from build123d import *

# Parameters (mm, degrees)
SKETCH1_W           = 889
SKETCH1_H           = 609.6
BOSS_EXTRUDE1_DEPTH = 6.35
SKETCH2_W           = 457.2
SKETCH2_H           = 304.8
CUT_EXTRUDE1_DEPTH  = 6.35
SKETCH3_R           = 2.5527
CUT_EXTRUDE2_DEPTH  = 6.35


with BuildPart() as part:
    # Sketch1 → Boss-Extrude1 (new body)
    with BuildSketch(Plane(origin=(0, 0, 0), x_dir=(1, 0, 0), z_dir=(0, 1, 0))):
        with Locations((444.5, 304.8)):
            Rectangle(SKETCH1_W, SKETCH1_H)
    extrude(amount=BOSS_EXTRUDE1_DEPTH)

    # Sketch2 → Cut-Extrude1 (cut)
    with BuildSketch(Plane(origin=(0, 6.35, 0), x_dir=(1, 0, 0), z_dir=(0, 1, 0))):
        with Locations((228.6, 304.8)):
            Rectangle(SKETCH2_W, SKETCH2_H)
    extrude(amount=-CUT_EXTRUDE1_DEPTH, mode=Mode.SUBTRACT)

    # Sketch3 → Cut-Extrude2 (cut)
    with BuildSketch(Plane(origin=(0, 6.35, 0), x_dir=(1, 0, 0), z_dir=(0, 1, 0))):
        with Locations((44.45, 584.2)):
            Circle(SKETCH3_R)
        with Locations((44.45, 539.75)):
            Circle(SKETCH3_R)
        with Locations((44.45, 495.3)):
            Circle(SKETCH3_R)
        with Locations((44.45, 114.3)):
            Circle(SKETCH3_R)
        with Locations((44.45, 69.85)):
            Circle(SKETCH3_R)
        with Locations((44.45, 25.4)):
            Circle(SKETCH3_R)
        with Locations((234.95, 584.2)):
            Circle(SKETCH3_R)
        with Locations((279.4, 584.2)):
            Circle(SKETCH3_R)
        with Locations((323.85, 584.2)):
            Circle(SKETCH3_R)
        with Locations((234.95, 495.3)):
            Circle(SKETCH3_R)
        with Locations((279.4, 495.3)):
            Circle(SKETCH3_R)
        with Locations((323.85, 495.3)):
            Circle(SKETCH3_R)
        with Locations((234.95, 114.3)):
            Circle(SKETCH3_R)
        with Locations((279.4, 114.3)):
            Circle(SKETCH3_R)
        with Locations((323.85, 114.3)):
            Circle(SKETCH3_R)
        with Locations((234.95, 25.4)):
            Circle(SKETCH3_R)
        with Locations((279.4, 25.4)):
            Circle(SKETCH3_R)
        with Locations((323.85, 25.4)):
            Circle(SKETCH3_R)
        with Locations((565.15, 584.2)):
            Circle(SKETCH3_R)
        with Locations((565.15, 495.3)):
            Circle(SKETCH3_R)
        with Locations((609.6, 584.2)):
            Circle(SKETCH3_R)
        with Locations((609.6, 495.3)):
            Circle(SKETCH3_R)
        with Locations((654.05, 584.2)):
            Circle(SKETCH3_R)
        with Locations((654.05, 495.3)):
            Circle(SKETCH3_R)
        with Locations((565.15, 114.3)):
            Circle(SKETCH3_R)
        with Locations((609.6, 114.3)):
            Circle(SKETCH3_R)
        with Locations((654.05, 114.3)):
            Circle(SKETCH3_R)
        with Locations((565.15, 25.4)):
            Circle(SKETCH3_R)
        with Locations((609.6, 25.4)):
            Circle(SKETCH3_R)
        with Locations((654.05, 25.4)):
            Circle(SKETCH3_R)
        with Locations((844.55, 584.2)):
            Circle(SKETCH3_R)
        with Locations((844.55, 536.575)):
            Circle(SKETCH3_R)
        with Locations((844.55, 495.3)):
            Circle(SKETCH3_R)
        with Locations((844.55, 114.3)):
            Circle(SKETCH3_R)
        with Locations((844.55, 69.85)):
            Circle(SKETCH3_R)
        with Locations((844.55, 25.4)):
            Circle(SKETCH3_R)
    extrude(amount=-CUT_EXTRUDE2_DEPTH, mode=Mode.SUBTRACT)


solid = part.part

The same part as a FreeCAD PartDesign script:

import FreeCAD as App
import Part
import Sketcher
from FreeCAD import Vector
Q = App.Units.Quantity

doc = App.newDocument("Part")
body = doc.addObject("PartDesign::Body", "Body")

# Sketch on XZ plane
sketch1 = body.newObject("Sketcher::SketchObject", "Sketch")
sketch1.AttachmentSupport = (doc.getObject("XZ_Plane"), [""])
sketch1.MapMode = "FlatFace"
sketch1.addGeometry(Part.LineSegment(Vector(0, -609.6, 0), Vector(0, 0, 0)), False)
sketch1.addGeometry(Part.LineSegment(Vector(0, 0, 0), Vector(889, 0, 0)), False)
sketch1.addGeometry(Part.LineSegment(Vector(889, 0, 0), Vector(889, -609.6, 0)), False)
sketch1.addGeometry(Part.LineSegment(Vector(889, -609.6, 0), Vector(0, -609.6, 0)), False)
sketch1.addConstraint(Sketcher.Constraint("Coincident", 0, 2, 1, 1))
sketch1.addConstraint(Sketcher.Constraint("Coincident", 1, 2, 2, 1))
sketch1.addConstraint(Sketcher.Constraint("Coincident", 2, 2, 3, 1))
sketch1.addConstraint(Sketcher.Constraint("Coincident", 3, 2, 0, 1))
sketch1.addConstraint(Sketcher.Constraint("Vertical", 0))
sketch1.addConstraint(Sketcher.Constraint("Horizontal", 1))
sketch1.addConstraint(Sketcher.Constraint("Vertical", 2))
sketch1.addConstraint(Sketcher.Constraint("Horizontal", 3))
sketch1.addConstraint(Sketcher.Constraint("Coincident", 0, 2, -1, 1))
sketch1.addConstraint(Sketcher.Constraint("DistanceX", 1, 1, 1, 2, Q("35 in")))
sketch1.addConstraint(Sketcher.Constraint("DistanceY", 0, 1, 0, 2, Q("24 in")))
pad1 = body.newObject("PartDesign::Pad", "Pad")
pad1.Profile = sketch1
pad1.Length = Q("0.25 in")
pad1.Reversed = True

# Sketch on XZ plane
sketch2 = body.newObject("Sketcher::SketchObject", "Sketch001")
sketch2.AttachmentSupport = (doc.getObject("XZ_Plane"), [""])
sketch2.MapMode = "FlatFace"
sketch2.AttachmentOffset = App.Placement(Vector(0, 0, -0.25 * 25.4), App.Rotation())
sketch2.addGeometry(Part.LineSegment(Vector(0, -457.2, 0), Vector(0, -152.4, 0)), False)
sketch2.addGeometry(Part.LineSegment(Vector(0, -152.4, 0), Vector(457.2, -152.4, 0)), False)
sketch2.addGeometry(Part.LineSegment(Vector(457.2, -152.4, 0), Vector(457.2, -457.2, 0)), False)
sketch2.addGeometry(Part.LineSegment(Vector(457.2, -457.2, 0), Vector(0, -457.2, 0)), False)
sketch2.addConstraint(Sketcher.Constraint("Coincident", 0, 2, 1, 1))
sketch2.addConstraint(Sketcher.Constraint("Coincident", 1, 2, 2, 1))
sketch2.addConstraint(Sketcher.Constraint("Coincident", 2, 2, 3, 1))
sketch2.addConstraint(Sketcher.Constraint("Coincident", 3, 2, 0, 1))
sketch2.addConstraint(Sketcher.Constraint("Vertical", 0))
sketch2.addConstraint(Sketcher.Constraint("Horizontal", 1))
sketch2.addConstraint(Sketcher.Constraint("Vertical", 2))
sketch2.addConstraint(Sketcher.Constraint("Horizontal", 3))
sketch2.addConstraint(Sketcher.Constraint("PointOnObject", 0, 2, -2))
sketch2.addConstraint(Sketcher.Constraint("DistanceX", 1, 1, 1, 2, Q("18 in")))
sketch2.addConstraint(Sketcher.Constraint("DistanceY", 0, 1, 0, 2, Q("12 in")))
sketch2.addConstraint(Sketcher.Constraint("DistanceY", 0, 2, -1, 1, Q("6 in")))
pocket1 = body.newObject("PartDesign::Pocket", "Pocket")
pocket1.Profile = sketch2
pocket1.Length = Q("0.25 in")
pocket1.Reversed = True

# Sketch on XZ plane
sketch3 = body.newObject("Sketcher::SketchObject", "Sketch002")
sketch3.AttachmentSupport = (doc.getObject("XZ_Plane"), [""])
sketch3.MapMode = "FlatFace"
sketch3.AttachmentOffset = App.Placement(Vector(0, 0, -0.25 * 25.4), App.Rotation())
sketch3.addGeometry(Part.Circle(Vector(44.45, -584.2, 0), Vector(0, 0, 1), 2.5527), False)
sketch3.addGeometry(Part.Circle(Vector(44.45, -539.75, 0), Vector(0, 0, 1), 2.5527), False)
sketch3.addGeometry(Part.Circle(Vector(44.45, -495.3, 0), Vector(0, 0, 1), 2.5527), False)
sketch3.addGeometry(Part.Circle(Vector(44.45, -114.3, 0), Vector(0, 0, 1), 2.5527), False)
sketch3.addGeometry(Part.Circle(Vector(44.45, -69.85, 0), Vector(0, 0, 1), 2.5527), False)
sketch3.addGeometry(Part.Circle(Vector(44.45, -25.4, 0), Vector(0, 0, 1), 2.5527), False)
sketch3.addGeometry(Part.Circle(Vector(234.95, -584.2, 0), Vector(0, 0, 1), 2.5527), False)
sketch3.addGeometry(Part.Circle(Vector(279.4, -584.2, 0), Vector(0, 0, 1), 2.5527), False)
sketch3.addGeometry(Part.Circle(Vector(323.85, -584.2, 0), Vector(0, 0, 1), 2.5527), False)
sketch3.addGeometry(Part.Circle(Vector(234.95, -495.3, 0), Vector(0, 0, 1), 2.5527), False)
sketch3.addGeometry(Part.Circle(Vector(279.4, -495.3, 0), Vector(0, 0, 1), 2.5527), False)
sketch3.addGeometry(Part.Circle(Vector(323.85, -495.3, 0), Vector(0, 0, 1), 2.5527), False)
sketch3.addGeometry(Part.Circle(Vector(234.95, -114.3, 0), Vector(0, 0, 1), 2.5527), False)
sketch3.addGeometry(Part.Circle(Vector(279.4, -114.3, 0), Vector(0, 0, 1), 2.5527), False)
sketch3.addGeometry(Part.Circle(Vector(323.85, -114.3, 0), Vector(0, 0, 1), 2.5527), False)
sketch3.addGeometry(Part.Circle(Vector(234.95, -25.4, 0), Vector(0, 0, 1), 2.5527), False)
sketch3.addGeometry(Part.Circle(Vector(279.4, -25.4, 0), Vector(0, 0, 1), 2.5527), False)
sketch3.addGeometry(Part.Circle(Vector(323.85, -25.4, 0), Vector(0, 0, 1), 2.5527), False)
sketch3.addGeometry(Part.Circle(Vector(565.15, -584.2, 0), Vector(0, 0, 1), 2.5527), False)
sketch3.addGeometry(Part.Circle(Vector(565.15, -495.3, 0), Vector(0, 0, 1), 2.5527), False)
sketch3.addGeometry(Part.Circle(Vector(609.6, -584.2, 0), Vector(0, 0, 1), 2.5527), False)
sketch3.addGeometry(Part.Circle(Vector(609.6, -495.3, 0), Vector(0, 0, 1), 2.5527), False)
sketch3.addGeometry(Part.Circle(Vector(654.05, -584.2, 0), Vector(0, 0, 1), 2.5527), False)
sketch3.addGeometry(Part.Circle(Vector(654.05, -495.3, 0), Vector(0, 0, 1), 2.5527), False)
sketch3.addGeometry(Part.Circle(Vector(565.15, -114.3, 0), Vector(0, 0, 1), 2.5527), False)
sketch3.addGeometry(Part.Circle(Vector(609.6, -114.3, 0), Vector(0, 0, 1), 2.5527), False)
sketch3.addGeometry(Part.Circle(Vector(654.05, -114.3, 0), Vector(0, 0, 1), 2.5527), False)
sketch3.addGeometry(Part.Circle(Vector(565.15, -25.4, 0), Vector(0, 0, 1), 2.5527), False)
sketch3.addGeometry(Part.Circle(Vector(609.6, -25.4, 0), Vector(0, 0, 1), 2.5527), False)
sketch3.addGeometry(Part.Circle(Vector(654.05, -25.4, 0), Vector(0, 0, 1), 2.5527), False)
sketch3.addGeometry(Part.Circle(Vector(844.55, -584.2, 0), Vector(0, 0, 1), 2.5527), False)
sketch3.addGeometry(Part.Circle(Vector(844.55, -536.575, 0), Vector(0, 0, 1), 2.5527), False)
sketch3.addGeometry(Part.Circle(Vector(844.55, -495.3, 0), Vector(0, 0, 1), 2.5527), False)
sketch3.addGeometry(Part.Circle(Vector(844.55, -114.3, 0), Vector(0, 0, 1), 2.5527), False)
sketch3.addGeometry(Part.Circle(Vector(844.55, -69.85, 0), Vector(0, 0, 1), 2.5527), False)
sketch3.addGeometry(Part.Circle(Vector(844.55, -25.4, 0), Vector(0, 0, 1), 2.5527), False)
sketch3.addConstraint(Sketcher.Constraint("Equal", 0, 1))
sketch3.addConstraint(Sketcher.Constraint("Equal", 1, 2))
sketch3.addConstraint(Sketcher.Constraint("Equal", 2, 3))
sketch3.addConstraint(Sketcher.Constraint("Equal", 3, 4))
sketch3.addConstraint(Sketcher.Constraint("Equal", 4, 5))
sketch3.addConstraint(Sketcher.Constraint("Equal", 5, 6))
sketch3.addConstraint(Sketcher.Constraint("Equal", 6, 7))
sketch3.addConstraint(Sketcher.Constraint("Equal", 7, 8))
sketch3.addConstraint(Sketcher.Constraint("Equal", 8, 9))
sketch3.addConstraint(Sketcher.Constraint("Equal", 9, 10))
sketch3.addConstraint(Sketcher.Constraint("Equal", 10, 11))
sketch3.addConstraint(Sketcher.Constraint("Equal", 11, 12))
sketch3.addConstraint(Sketcher.Constraint("Equal", 12, 13))
sketch3.addConstraint(Sketcher.Constraint("Equal", 13, 14))
sketch3.addConstraint(Sketcher.Constraint("Equal", 14, 15))
sketch3.addConstraint(Sketcher.Constraint("Equal", 15, 16))
sketch3.addConstraint(Sketcher.Constraint("Equal", 16, 17))
sketch3.addConstraint(Sketcher.Constraint("Equal", 17, 18))
sketch3.addConstraint(Sketcher.Constraint("Equal", 18, 19))
sketch3.addConstraint(Sketcher.Constraint("Equal", 19, 20))
sketch3.addConstraint(Sketcher.Constraint("Equal", 20, 21))
sketch3.addConstraint(Sketcher.Constraint("Equal", 21, 22))
sketch3.addConstraint(Sketcher.Constraint("Equal", 22, 23))
sketch3.addConstraint(Sketcher.Constraint("Equal", 23, 24))
sketch3.addConstraint(Sketcher.Constraint("Equal", 24, 25))
sketch3.addConstraint(Sketcher.Constraint("Equal", 25, 26))
sketch3.addConstraint(Sketcher.Constraint("Equal", 26, 27))
sketch3.addConstraint(Sketcher.Constraint("Equal", 27, 28))
sketch3.addConstraint(Sketcher.Constraint("Equal", 28, 29))
sketch3.addConstraint(Sketcher.Constraint("Equal", 29, 30))
sketch3.addConstraint(Sketcher.Constraint("Equal", 30, 31))
sketch3.addConstraint(Sketcher.Constraint("Equal", 31, 32))
sketch3.addConstraint(Sketcher.Constraint("Equal", 32, 33))
sketch3.addConstraint(Sketcher.Constraint("Equal", 33, 34))
sketch3.addConstraint(Sketcher.Constraint("Equal", 34, 35))
sketch3.addConstraint(Sketcher.Constraint("Horizontal", 0, 3, 6, 3))
sketch3.addConstraint(Sketcher.Constraint("Horizontal", 6, 3, 7, 3))
sketch3.addConstraint(Sketcher.Constraint("Horizontal", 7, 3, 8, 3))
sketch3.addConstraint(Sketcher.Constraint("Horizontal", 2, 3, 9, 3))
sketch3.addConstraint(Sketcher.Constraint("Horizontal", 9, 3, 10, 3))
sketch3.addConstraint(Sketcher.Constraint("Horizontal", 10, 3, 11, 3))
sketch3.addConstraint(Sketcher.Constraint("Horizontal", 3, 3, 12, 3))
sketch3.addConstraint(Sketcher.Constraint("Horizontal", 12, 3, 13, 3))
sketch3.addConstraint(Sketcher.Constraint("Horizontal", 13, 3, 14, 3))
sketch3.addConstraint(Sketcher.Constraint("Horizontal", 5, 3, 15, 3))
sketch3.addConstraint(Sketcher.Constraint("Horizontal", 15, 3, 16, 3))
sketch3.addConstraint(Sketcher.Constraint("Horizontal", 16, 3, 17, 3))
sketch3.addConstraint(Sketcher.Constraint("Horizontal", 8, 3, 18, 3))
sketch3.addConstraint(Sketcher.Constraint("Horizontal", 11, 3, 19, 3))
sketch3.addConstraint(Sketcher.Constraint("Horizontal", 18, 3, 20, 3))
sketch3.addConstraint(Sketcher.Constraint("Horizontal", 19, 3, 21, 3))
sketch3.addConstraint(Sketcher.Constraint("Horizontal", 20, 3, 22, 3))
sketch3.addConstraint(Sketcher.Constraint("Horizontal", 21, 3, 23, 3))
sketch3.addConstraint(Sketcher.Constraint("Horizontal", 14, 3, 24, 3))
sketch3.addConstraint(Sketcher.Constraint("Horizontal", 24, 3, 25, 3))
sketch3.addConstraint(Sketcher.Constraint("Horizontal", 25, 3, 26, 3))
sketch3.addConstraint(Sketcher.Constraint("Horizontal", 17, 3, 27, 3))
sketch3.addConstraint(Sketcher.Constraint("Horizontal", 27, 3, 28, 3))
sketch3.addConstraint(Sketcher.Constraint("Horizontal", 28, 3, 29, 3))
sketch3.addConstraint(Sketcher.Constraint("Horizontal", 22, 3, 30, 3))
sketch3.addConstraint(Sketcher.Constraint("Horizontal", 23, 3, 32, 3))
sketch3.addConstraint(Sketcher.Constraint("Horizontal", 26, 3, 33, 3))
sketch3.addConstraint(Sketcher.Constraint("Horizontal", 4, 3, 34, 3))
sketch3.addConstraint(Sketcher.Constraint("Horizontal", 29, 3, 35, 3))
sketch3.addConstraint(Sketcher.Constraint("Vertical", 0, 3, 1, 3))
sketch3.addConstraint(Sketcher.Constraint("Vertical", 1, 3, 2, 3))
sketch3.addConstraint(Sketcher.Constraint("Vertical", 2, 3, 3, 3))
sketch3.addConstraint(Sketcher.Constraint("Vertical", 3, 3, 4, 3))
sketch3.addConstraint(Sketcher.Constraint("Vertical", 4, 3, 5, 3))
sketch3.addConstraint(Sketcher.Constraint("Vertical", 6, 3, 9, 3))
sketch3.addConstraint(Sketcher.Constraint("Vertical", 7, 3, 10, 3))
sketch3.addConstraint(Sketcher.Constraint("Vertical", 8, 3, 11, 3))
sketch3.addConstraint(Sketcher.Constraint("Vertical", 9, 3, 12, 3))
sketch3.addConstraint(Sketcher.Constraint("Vertical", 10, 3, 13, 3))
sketch3.addConstraint(Sketcher.Constraint("Vertical", 11, 3, 14, 3))
sketch3.addConstraint(Sketcher.Constraint("Vertical", 12, 3, 15, 3))
sketch3.addConstraint(Sketcher.Constraint("Vertical", 13, 3, 16, 3))
sketch3.addConstraint(Sketcher.Constraint("Vertical", 14, 3, 17, 3))
sketch3.addConstraint(Sketcher.Constraint("Vertical", 18, 3, 19, 3))
sketch3.addConstraint(Sketcher.Constraint("Vertical", 20, 3, 21, 3))
sketch3.addConstraint(Sketcher.Constraint("Vertical", 22, 3, 23, 3))
sketch3.addConstraint(Sketcher.Constraint("Vertical", 19, 3, 24, 3))
sketch3.addConstraint(Sketcher.Constraint("Vertical", 21, 3, 25, 3))
sketch3.addConstraint(Sketcher.Constraint("Vertical", 23, 3, 26, 3))
sketch3.addConstraint(Sketcher.Constraint("Vertical", 24, 3, 27, 3))
sketch3.addConstraint(Sketcher.Constraint("Vertical", 25, 3, 28, 3))
sketch3.addConstraint(Sketcher.Constraint("Vertical", 26, 3, 29, 3))
sketch3.addConstraint(Sketcher.Constraint("Vertical", 30, 3, 31, 3))
sketch3.addConstraint(Sketcher.Constraint("Vertical", 31, 3, 32, 3))
sketch3.addConstraint(Sketcher.Constraint("Vertical", 32, 3, 33, 3))
sketch3.addConstraint(Sketcher.Constraint("Vertical", 33, 3, 34, 3))
sketch3.addConstraint(Sketcher.Constraint("Vertical", 34, 3, 35, 3))
sketch3.addConstraint(Sketcher.Constraint("Diameter", 0, Q("0.201 in")))
sketch3.addConstraint(Sketcher.Constraint("DistanceY", 0, 3, -1, 1, Q("23 in")))
sketch3.addConstraint(Sketcher.Constraint("DistanceY", 5, 3, -1, 1, Q("1 in")))
sketch3.addConstraint(Sketcher.Constraint("DistanceX", -1, 1, 7, 3, Q("11 in")))
sketch3.addConstraint(Sketcher.Constraint("DistanceX", -1, 1, 20, 3, Q("24 in")))
sketch3.addConstraint(Sketcher.Constraint("DistanceY", 2, 3, 3, 3, Q("15 in")))
sketch3.addConstraint(Sketcher.Constraint("DistanceX", 0, 3, 8, 3, Q("11 in")))
sketch3.addConstraint(Sketcher.Constraint("DistanceX", 6, 3, 18, 3, Q("13 in")))
sketch3.addConstraint(Sketcher.Constraint("DistanceX", 8, 3, 22, 3, Q("13 in")))
sketch3.addConstraint(Sketcher.Constraint("DistanceX", 18, 3, 30, 3, Q("11 in")))
sketch3.addConstraint(Sketcher.Constraint("DistanceY", 2, 3, -1, 1, Q("19.5 in")))
sketch3.addConstraint(Sketcher.Constraint("DistanceY", 1, 3, 4, 3, Q("18.5 in")))
sketch3.addConstraint(Sketcher.Constraint("DistanceX", 0, 3, 6, 3, Q("7.5 in")))
sketch3.addConstraint(Sketcher.Constraint("DistanceX", -1, 1, 0, 3, Q("1.75 in")))
sketch3.addConstraint(Sketcher.Constraint("DistanceY", 1, 3, -1, 1, Q("21.25 in")))
sketch3.addConstraint(Sketcher.Constraint("DistanceY", 31, 3, -1, 1, Q("21.125 in")))
pocket2 = body.newObject("PartDesign::Pocket", "Pocket001")
pocket2.Profile = sketch3
pocket2.Length = Q("0.25 in")
pocket2.Reversed = True

doc.recompute()
